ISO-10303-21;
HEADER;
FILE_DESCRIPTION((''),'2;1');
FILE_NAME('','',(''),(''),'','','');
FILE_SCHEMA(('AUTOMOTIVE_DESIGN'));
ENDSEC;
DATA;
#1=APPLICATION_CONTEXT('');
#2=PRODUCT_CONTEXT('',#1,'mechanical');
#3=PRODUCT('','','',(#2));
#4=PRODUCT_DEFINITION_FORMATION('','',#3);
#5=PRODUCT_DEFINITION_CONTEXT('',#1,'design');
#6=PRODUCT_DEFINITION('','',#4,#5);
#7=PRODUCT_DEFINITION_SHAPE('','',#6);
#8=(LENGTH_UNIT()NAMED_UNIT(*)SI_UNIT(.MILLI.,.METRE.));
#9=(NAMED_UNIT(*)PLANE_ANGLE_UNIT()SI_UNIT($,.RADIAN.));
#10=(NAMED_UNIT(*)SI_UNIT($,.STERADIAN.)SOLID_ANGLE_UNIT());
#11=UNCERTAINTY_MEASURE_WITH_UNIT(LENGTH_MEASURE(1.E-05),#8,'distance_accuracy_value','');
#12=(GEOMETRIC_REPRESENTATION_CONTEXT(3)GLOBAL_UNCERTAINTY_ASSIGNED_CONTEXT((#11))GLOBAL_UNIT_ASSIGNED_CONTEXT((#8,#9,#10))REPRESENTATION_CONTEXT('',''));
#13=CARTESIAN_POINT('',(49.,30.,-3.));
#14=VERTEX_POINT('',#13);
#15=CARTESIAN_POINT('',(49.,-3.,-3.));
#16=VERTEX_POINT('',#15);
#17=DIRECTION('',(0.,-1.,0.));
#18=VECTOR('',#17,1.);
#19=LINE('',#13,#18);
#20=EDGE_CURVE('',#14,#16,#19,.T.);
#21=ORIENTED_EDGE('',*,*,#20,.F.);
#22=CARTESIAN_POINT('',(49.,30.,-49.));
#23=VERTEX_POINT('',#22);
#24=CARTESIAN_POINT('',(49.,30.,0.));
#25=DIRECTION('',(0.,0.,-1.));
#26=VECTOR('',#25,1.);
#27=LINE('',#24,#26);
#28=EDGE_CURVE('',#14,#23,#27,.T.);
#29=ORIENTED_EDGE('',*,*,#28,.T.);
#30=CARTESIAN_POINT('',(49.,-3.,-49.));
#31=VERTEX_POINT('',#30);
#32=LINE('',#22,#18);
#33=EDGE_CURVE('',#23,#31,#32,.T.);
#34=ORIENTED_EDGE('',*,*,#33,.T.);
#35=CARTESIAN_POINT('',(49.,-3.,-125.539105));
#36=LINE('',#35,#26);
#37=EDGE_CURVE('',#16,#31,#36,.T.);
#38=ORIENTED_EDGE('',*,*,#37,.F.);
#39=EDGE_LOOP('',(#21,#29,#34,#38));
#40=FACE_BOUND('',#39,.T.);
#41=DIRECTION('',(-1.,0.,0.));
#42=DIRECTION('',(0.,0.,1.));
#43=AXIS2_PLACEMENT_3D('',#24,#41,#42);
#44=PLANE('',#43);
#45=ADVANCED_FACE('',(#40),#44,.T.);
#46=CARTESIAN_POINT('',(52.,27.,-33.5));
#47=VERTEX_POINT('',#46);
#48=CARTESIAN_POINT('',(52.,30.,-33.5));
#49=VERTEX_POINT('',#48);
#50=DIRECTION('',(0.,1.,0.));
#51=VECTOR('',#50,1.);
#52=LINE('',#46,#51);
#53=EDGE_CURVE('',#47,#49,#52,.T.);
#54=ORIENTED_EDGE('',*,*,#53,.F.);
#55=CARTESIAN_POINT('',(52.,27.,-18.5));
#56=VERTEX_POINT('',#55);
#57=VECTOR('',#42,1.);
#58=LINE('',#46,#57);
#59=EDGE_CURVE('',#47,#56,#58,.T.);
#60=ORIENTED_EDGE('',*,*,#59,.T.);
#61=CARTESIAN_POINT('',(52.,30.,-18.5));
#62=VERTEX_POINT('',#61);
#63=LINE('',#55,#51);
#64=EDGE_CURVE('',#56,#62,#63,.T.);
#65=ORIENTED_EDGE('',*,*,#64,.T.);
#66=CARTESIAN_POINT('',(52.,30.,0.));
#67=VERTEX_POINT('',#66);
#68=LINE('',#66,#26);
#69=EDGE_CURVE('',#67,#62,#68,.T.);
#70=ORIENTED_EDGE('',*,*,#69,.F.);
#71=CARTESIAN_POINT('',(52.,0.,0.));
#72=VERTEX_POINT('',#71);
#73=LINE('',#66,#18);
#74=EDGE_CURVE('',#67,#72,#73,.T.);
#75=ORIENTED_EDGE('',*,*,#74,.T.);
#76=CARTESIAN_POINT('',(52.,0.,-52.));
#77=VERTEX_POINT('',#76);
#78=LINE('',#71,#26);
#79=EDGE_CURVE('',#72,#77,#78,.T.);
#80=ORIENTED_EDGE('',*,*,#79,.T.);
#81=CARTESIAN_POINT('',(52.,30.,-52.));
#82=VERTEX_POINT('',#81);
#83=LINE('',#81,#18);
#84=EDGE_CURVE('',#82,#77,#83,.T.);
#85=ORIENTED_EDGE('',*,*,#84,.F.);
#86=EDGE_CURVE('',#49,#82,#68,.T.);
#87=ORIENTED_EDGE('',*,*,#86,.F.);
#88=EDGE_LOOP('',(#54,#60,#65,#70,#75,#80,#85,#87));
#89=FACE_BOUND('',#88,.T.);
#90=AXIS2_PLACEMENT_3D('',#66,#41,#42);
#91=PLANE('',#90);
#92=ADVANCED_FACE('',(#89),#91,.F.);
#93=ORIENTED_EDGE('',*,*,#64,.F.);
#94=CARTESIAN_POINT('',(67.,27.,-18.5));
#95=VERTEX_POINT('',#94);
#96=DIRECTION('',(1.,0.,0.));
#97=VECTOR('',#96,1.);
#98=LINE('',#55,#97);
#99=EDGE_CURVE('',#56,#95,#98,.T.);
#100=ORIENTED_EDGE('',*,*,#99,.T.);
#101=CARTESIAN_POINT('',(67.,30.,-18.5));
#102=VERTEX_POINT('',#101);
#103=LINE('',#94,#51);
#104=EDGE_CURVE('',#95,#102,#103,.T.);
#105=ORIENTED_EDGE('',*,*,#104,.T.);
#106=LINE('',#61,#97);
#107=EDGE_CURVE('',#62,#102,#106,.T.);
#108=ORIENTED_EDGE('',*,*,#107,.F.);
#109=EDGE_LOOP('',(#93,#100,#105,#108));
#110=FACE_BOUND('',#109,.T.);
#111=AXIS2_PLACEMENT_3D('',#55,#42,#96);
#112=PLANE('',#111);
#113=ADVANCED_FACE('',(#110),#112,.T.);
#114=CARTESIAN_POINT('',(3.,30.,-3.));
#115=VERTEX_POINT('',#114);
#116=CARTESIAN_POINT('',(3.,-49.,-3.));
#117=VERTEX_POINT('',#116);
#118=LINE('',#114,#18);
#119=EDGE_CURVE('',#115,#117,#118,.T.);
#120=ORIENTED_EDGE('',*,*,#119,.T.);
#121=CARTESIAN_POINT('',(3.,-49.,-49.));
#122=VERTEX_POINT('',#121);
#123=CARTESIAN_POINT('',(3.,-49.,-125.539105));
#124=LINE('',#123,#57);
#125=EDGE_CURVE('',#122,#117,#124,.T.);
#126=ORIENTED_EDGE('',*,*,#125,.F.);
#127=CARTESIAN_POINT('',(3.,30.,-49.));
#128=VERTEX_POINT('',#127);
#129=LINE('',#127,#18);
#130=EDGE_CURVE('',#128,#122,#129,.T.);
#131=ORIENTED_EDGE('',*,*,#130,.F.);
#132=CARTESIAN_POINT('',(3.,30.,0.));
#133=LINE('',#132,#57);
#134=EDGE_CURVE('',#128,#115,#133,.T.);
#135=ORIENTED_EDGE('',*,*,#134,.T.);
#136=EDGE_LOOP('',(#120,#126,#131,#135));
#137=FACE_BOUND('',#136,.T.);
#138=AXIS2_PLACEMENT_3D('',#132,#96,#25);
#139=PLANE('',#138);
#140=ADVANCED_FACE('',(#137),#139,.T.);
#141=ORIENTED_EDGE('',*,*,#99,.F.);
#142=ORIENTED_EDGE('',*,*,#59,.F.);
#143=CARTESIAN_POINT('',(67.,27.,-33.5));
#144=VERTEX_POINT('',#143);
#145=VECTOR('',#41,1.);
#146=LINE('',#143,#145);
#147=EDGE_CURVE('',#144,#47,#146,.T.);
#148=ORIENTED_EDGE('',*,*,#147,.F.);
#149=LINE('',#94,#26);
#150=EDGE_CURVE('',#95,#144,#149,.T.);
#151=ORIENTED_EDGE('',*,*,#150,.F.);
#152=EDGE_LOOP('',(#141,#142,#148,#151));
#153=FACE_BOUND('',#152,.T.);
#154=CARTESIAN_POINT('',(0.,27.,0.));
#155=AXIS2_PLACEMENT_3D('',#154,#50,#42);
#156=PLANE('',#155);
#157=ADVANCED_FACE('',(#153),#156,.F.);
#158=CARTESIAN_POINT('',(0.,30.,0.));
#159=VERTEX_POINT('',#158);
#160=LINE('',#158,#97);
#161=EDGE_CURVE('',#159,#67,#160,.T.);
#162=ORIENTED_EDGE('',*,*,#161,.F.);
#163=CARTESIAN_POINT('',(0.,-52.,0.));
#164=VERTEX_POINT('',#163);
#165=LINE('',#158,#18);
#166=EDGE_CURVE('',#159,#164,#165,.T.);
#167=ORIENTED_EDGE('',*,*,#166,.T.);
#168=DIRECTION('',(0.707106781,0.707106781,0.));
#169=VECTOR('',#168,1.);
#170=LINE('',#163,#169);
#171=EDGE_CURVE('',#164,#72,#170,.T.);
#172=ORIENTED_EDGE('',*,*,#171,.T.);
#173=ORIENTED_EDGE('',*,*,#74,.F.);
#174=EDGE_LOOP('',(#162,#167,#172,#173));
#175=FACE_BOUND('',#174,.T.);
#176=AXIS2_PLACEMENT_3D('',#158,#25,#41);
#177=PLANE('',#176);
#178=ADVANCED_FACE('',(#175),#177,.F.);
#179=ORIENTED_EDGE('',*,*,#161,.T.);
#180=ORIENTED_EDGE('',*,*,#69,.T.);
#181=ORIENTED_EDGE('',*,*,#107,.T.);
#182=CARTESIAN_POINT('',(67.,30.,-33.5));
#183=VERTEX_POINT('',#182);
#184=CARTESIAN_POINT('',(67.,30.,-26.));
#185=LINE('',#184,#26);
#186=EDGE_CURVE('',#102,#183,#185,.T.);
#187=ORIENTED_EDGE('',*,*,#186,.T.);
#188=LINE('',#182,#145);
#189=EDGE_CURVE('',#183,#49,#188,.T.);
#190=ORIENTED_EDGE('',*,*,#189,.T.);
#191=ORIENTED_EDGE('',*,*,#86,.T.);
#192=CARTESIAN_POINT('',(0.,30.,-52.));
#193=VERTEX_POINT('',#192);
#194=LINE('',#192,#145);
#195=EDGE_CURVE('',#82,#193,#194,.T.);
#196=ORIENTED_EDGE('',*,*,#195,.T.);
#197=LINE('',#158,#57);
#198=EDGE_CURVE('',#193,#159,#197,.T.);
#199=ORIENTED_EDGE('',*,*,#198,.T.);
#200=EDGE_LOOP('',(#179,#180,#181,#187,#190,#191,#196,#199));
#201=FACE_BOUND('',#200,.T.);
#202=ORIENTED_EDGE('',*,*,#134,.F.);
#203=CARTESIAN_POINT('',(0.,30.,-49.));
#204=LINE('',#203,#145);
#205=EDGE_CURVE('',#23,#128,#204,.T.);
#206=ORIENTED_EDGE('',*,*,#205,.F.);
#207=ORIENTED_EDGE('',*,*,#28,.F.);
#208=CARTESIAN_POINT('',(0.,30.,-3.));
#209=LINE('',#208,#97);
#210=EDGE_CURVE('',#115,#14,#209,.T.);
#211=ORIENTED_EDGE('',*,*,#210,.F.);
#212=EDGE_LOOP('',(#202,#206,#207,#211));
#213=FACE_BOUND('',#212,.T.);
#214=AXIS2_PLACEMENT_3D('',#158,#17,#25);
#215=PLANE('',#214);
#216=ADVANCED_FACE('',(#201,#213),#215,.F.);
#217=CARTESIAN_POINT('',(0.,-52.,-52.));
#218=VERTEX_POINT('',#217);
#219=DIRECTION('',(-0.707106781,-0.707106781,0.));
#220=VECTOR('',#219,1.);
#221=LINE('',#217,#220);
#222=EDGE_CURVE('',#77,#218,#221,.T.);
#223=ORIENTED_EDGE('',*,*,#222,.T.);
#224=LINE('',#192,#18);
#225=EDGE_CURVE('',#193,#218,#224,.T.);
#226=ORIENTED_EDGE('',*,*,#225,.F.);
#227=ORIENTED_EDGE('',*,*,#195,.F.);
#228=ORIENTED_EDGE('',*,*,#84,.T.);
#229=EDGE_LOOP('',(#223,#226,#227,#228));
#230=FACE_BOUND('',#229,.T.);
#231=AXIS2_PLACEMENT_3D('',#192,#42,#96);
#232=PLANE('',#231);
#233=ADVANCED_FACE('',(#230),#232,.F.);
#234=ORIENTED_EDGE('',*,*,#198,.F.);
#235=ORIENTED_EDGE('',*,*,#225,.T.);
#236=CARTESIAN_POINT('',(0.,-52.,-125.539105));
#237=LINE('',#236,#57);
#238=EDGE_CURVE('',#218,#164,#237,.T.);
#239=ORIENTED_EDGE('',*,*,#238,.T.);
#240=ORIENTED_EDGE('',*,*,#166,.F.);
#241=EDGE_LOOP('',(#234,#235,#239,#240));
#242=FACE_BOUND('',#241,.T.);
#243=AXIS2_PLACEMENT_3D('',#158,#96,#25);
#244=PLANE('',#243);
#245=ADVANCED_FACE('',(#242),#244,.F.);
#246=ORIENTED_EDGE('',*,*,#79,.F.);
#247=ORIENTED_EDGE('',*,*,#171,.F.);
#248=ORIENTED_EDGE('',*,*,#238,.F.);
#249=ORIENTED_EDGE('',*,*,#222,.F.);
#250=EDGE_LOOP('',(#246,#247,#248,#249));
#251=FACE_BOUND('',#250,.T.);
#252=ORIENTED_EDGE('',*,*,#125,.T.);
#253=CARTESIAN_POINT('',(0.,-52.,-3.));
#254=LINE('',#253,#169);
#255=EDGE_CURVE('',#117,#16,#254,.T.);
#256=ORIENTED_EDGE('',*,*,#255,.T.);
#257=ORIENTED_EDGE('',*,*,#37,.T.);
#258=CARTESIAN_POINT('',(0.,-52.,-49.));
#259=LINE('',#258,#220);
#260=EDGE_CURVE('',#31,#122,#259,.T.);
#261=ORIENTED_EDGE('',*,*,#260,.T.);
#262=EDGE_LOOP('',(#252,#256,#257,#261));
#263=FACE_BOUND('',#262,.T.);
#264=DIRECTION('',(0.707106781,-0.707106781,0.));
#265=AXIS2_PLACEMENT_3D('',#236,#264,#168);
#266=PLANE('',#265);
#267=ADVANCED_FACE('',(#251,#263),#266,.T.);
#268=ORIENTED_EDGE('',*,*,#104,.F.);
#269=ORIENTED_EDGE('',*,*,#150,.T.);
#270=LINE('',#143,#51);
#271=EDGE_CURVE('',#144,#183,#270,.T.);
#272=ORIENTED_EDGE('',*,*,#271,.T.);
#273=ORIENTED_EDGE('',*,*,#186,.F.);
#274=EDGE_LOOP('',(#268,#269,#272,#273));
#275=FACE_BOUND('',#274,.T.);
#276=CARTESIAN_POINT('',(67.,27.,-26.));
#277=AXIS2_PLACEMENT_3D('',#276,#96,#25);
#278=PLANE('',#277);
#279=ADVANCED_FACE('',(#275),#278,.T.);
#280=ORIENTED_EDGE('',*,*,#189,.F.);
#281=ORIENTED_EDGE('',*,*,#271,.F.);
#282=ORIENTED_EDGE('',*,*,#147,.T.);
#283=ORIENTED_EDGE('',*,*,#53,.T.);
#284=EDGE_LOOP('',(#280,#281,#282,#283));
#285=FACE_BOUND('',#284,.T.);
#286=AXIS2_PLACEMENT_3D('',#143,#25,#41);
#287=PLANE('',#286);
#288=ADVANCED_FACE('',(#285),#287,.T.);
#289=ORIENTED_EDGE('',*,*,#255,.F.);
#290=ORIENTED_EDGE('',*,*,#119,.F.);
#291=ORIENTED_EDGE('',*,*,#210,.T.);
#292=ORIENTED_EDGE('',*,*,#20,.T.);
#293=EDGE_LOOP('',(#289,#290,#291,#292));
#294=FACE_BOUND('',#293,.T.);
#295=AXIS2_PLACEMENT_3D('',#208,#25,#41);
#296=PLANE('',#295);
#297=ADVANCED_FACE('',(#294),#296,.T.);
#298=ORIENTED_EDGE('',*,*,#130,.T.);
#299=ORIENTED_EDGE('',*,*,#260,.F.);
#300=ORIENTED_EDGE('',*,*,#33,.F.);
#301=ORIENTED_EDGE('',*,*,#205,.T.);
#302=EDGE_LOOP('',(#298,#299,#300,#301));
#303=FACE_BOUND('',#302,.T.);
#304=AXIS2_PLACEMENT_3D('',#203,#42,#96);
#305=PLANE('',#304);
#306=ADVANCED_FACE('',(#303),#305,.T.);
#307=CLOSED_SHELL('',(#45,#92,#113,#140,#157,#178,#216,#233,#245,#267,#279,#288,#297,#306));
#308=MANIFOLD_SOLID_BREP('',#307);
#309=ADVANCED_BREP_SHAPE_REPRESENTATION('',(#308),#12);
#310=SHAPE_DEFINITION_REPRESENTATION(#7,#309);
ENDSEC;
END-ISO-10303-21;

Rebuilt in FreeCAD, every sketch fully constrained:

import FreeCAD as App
import Part
import Sketcher
Q = App.Units.Quantity


def faces_at(feature, points):
    """Names of the faces that lie closest to the given points."""
    faces = feature.Shape.Faces
    near = lambda p: min(range(len(faces)), key=lambda i: faces[i].distToShape(Part.Vertex(*p))[0])
    return sorted({f"Face{near(p) + 1}" for p in points})

doc = App.newDocument("Part")
body = doc.addObject("PartDesign::Body", "Body")

# Sketch on XZ plane
sketch1 = doc.addObject("Sketcher::SketchObject", "Sketch")
body.addObject(sketch1)
sketch1.AttachmentSupport = (doc.XZ_Plane, [""])
sketch1.MapMode = "FlatFace"
sketch1.addGeometry([
    Part.LineSegment(App.Vector(0, -52, 0), App.Vector(0, 0, 0)),
    Part.LineSegment(App.Vector(0, 0, 0), App.Vector(52, 0, 0)),
    Part.LineSegment(App.Vector(52, 0, 0), App.Vector(52, -52, 0)),
    Part.LineSegment(App.Vector(52, -52, 0), App.Vector(0, -52, 0)),
], False)
sketch1.addConstraint([
    Sketcher.Constraint("Coincident", 0, 2, 1, 1),
    Sketcher.Constraint("Coincident", 1, 2, 2, 1),
    Sketcher.Constraint("Coincident", 2, 2, 3, 1),
    Sketcher.Constraint("Coincident", 3, 2, 0, 1),
    Sketcher.Constraint("Vertical", 0),
    Sketcher.Constraint("Horizontal", 1),
    Sketcher.Constraint("Vertical", 2),
    Sketcher.Constraint("Horizontal", 3),
    Sketcher.Constraint("Coincident", 0, 2, -1, 1),
    Sketcher.Constraint("Equal", 3, 0),
    Sketcher.Constraint("DistanceX", 1, 1, 1, 2, Q("52 mm")),
])
pad1 = doc.addObject("PartDesign::Pad", "Pad")
body.addObject(pad1)
pad1.Profile = sketch1
pad1.Length = 30
pad1.Reversed = True

# Sketch on XY plane
sketch2 = doc.addObject("Sketcher::SketchObject", "Sketch001")
body.addObject(sketch2)
sketch2.AttachmentSupport = (doc.XY_Plane, [""])
sketch2.MapMode = "FlatFace"
sketch2.addGeometry([
    Part.LineSegment(App.Vector(0, 0, 0), App.Vector(0, -52, 0)),
    Part.LineSegment(App.Vector(0, -52, 0), App.Vector(52, 0, 0)),
    Part.LineSegment(App.Vector(52, 0, 0), App.Vector(0, 0, 0)),
], False)
sketch2.addConstraint([
    Sketcher.Constraint("Coincident", 0, 2, 1, 1),
    Sketcher.Constraint("Coincident", 1, 2, 2, 1),
    Sketcher.Constraint("Coincident", 2, 2, 0, 1),
    Sketcher.Constraint("Vertical", 0),
    Sketcher.Constraint("Horizontal", 2),
    Sketcher.Constraint("Coincident", 2, 2, -1, 1),
    Sketcher.Constraint("Equal", 2, 0),
    Sketcher.Constraint("DistanceX", 2, 2, 2, 1, Q("52 mm")),
])
pad2 = doc.addObject("PartDesign::Pad", "Pad001")
body.addObject(pad2)
pad2.Profile = sketch2
pad2.Length = 52
pad2.Reversed = True
doc.recompute()

thickness = doc.addObject("PartDesign::Thickness", "Thickness")
body.addObject(thickness)
thickness.Base = (pad2, faces_at(pad2, [(26, 30, -26), (26, -26, -26)]))
thickness.Value = 3
thickness.Reversed = True
thickness.Join = "Intersection"

# Sketch on XZ plane
sketch3 = doc.addObject("Sketcher::SketchObject", "Sketch002")
body.addObject(sketch3)
sketch3.AttachmentSupport = (doc.XZ_Plane, [""])
sketch3.MapMode = "FlatFace"
sketch3.AttachmentOffset = App.Placement(App.Vector(0, 0, -30), App.Rotation())
sketch3.addGeometry([
    Part.LineSegment(App.Vector(52, -18, 0), App.Vector(67, -18, 0)),
    Part.LineSegment(App.Vector(67, -18, 0), App.Vector(67, -34, 0)),
    Part.LineSegment(App.Vector(67, -34, 0), App.Vector(52, -34, 0)),
    Part.LineSegment(App.Vector(52, -34, 0), App.Vector(52, -18, 0)),
], False)
sketch3.addConstraint([
    Sketcher.Constraint("Coincident", 0, 2, 1, 1),
    Sketcher.Constraint("Coincident", 1, 2, 2, 1),
    Sketcher.Constraint("Coincident", 2, 2, 3, 1),
    Sketcher.Constraint("Coincident", 3, 2, 0, 1),
    Sketcher.Constraint("Horizontal", 0),
    Sketcher.Constraint("Vertical", 1),
    Sketcher.Constraint("Horizontal", 2),
    Sketcher.Constraint("Vertical", 3),
    Sketcher.Constraint("Equal", 2, 1),
    Sketcher.Constraint("DistanceX", 0, 1, 0, 2, Q("15 mm")),
    Sketcher.Constraint("DistanceX", -1, 1, 0, 2, Q("67 mm")),
    Sketcher.Constraint("DistanceY", 0, 2, -1, 1, Q("18.5 mm")),
])
pad3 = doc.addObject("PartDesign::Pad", "Pad002")
body.addObject(pad3)
pad3.Profile = sketch3
pad3.Length = 3

doc.recompute()
